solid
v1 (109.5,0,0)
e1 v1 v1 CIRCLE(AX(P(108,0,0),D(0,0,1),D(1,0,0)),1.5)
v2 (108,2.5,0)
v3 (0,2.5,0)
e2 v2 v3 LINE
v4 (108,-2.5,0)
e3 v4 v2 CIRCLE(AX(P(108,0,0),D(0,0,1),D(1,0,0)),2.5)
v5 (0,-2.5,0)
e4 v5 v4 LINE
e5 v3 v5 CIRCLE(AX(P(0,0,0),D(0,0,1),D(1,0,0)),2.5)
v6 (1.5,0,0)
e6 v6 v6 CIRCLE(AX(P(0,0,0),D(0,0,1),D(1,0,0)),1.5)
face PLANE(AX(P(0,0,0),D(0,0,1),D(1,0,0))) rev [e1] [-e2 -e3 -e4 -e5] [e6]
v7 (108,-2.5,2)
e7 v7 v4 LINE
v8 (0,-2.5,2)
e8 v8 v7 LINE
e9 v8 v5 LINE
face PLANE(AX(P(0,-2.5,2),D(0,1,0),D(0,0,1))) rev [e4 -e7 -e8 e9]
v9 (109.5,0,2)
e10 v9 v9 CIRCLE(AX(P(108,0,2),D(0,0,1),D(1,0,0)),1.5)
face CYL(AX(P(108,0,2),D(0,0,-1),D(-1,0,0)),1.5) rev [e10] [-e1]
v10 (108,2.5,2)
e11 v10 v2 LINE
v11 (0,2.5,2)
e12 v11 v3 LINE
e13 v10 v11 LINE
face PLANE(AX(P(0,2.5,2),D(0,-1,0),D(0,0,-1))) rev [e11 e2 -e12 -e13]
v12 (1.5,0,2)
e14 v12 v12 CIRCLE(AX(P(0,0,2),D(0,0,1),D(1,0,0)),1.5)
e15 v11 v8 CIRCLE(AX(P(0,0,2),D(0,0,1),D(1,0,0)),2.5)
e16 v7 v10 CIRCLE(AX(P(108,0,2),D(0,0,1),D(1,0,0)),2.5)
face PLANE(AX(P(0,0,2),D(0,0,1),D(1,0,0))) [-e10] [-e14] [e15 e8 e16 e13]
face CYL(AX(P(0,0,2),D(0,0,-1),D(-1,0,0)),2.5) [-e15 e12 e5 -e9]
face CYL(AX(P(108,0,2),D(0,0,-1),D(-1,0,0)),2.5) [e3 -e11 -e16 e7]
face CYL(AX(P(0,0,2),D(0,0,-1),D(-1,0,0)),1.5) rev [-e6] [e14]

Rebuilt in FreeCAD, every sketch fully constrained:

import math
import FreeCAD as App
import Part
import Sketcher

V = App.Vector
Q = App.Units.Quantity

doc = App.newDocument("Part")
body = doc.addObject("PartDesign::Body", "Body")

# Sketch on XY plane
sketch1 = doc.addObject("Sketcher::SketchObject", "Sketch")
body.addObject(sketch1)
sketch1.AttachmentSupport = (doc.XY_Plane, [""])
sketch1.MapMode = "FlatFace"
sketch1.addGeometry([
    Part.LineSegment(V(108, 2.5, 0), V(0, 2.5, 0)),  # 0
    Part.ArcOfCircle(Part.Circle(V(0, 0, 0), V(0, 0, 1), 2.5), math.radians(90), math.radians(270)),  # 1
    Part.LineSegment(V(0, -2.5, 0), V(108, -2.5, 0)),  # 2
    Part.ArcOfCircle(Part.Circle(V(108, 0, 0), V(0, 0, 1), 2.5), math.radians(-90), math.radians(90)),  # 3
    Part.Circle(V(108, 0, 0), V(0, 0, 1), 1.5),  # 4
    Part.Circle(V(0, 0, 0), V(0, 0, 1), 1.5),  # 5
], False)
sketch1.addConstraint([
    Sketcher.Constraint("Tangent", 0, 2, 1, 1),
    Sketcher.Constraint("Tangent", 1, 2, 2, 1),
    Sketcher.Constraint("Tangent", 2, 2, 3, 1),
    Sketcher.Constraint("Tangent", 3, 2, 0, 1),
    Sketcher.Constraint("Horizontal", 0),
    Sketcher.Constraint("Horizontal", 2),
    Sketcher.Constraint("Coincident", 1, 3, -1, 1),
    Sketcher.Constraint("Coincident", 5, 3, -1, 1),
    Sketcher.Constraint("Coincident", 4, 3, 3, 3),
    Sketcher.Constraint("Equal", 4, 5),
    Sketcher.Constraint("Diameter", 4, Q("3 mm")),
    Sketcher.Constraint("Radius", 1, Q("2.5 mm")),
    Sketcher.Constraint("DistanceX", 0, 2, 0, 1, Q("108 mm")),
])
pad1 = doc.addObject("PartDesign::Pad", "Pad")
body.addObject(pad1)
pad1.Profile = sketch1
pad1.Length = 2

doc.recompute()
